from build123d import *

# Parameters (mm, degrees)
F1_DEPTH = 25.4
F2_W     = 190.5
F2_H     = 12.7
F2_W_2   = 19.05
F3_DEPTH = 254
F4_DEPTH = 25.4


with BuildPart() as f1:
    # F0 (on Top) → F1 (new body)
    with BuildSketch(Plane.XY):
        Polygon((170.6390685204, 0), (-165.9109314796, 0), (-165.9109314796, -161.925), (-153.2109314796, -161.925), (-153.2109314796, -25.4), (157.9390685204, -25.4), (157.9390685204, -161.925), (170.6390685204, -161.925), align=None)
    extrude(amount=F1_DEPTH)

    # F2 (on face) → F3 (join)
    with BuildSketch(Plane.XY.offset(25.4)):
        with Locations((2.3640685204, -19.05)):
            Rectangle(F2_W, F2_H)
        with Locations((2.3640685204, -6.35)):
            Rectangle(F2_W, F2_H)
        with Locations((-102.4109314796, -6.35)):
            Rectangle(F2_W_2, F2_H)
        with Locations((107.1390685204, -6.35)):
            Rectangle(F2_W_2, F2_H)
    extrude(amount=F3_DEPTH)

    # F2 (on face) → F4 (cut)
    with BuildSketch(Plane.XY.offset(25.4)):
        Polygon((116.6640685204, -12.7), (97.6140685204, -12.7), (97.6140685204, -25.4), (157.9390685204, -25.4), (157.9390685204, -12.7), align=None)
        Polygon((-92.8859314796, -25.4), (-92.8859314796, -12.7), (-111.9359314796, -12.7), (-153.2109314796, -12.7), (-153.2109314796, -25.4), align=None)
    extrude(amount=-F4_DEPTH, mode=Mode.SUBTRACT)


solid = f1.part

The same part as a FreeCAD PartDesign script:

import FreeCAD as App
import Part
import Sketcher

V = App.Vector
Q = App.Units.Quantity


def add_polygon(sketch, points):
    """Adds a closed chain of lines whose ends are joined by coincident constraints."""
    first, n = sketch.GeometryCount, len(points)
    for a, b in zip(points, points[1:] + points[:1]):
        sketch.addGeometry(Part.LineSegment(App.Vector(*a, 0), App.Vector(*b, 0)), False)
    for i in range(n):
        sketch.addConstraint(Sketcher.Constraint("Coincident", first + i, 2, first + (i + 1) % n, 1))

doc = App.newDocument("Part")
body = doc.addObject("PartDesign::Body", "Body")

sketch1 = doc.addObject("Sketcher::SketchObject", "Sketch")
body.addObject(sketch1)
sketch1.AttachmentSupport = (doc.XY_Plane, [""])
sketch1.MapMode = "FlatFace"
add_polygon(sketch1, [(170.639069, 0), (-165.910931, 0), (-165.910931, -161.925), (-153.210931, -161.925), (-153.210931, -25.4), (157.939069, -25.4), (157.939069, -161.925), (170.639069, -161.925)])
sketch1.addConstraint([
    Sketcher.Constraint("Horizontal", 0),
    Sketcher.Constraint("Vertical", 1),
    Sketcher.Constraint("Horizontal", 2),
    Sketcher.Constraint("Vertical", 3),
    Sketcher.Constraint("Horizontal", 4),
    Sketcher.Constraint("Vertical", 5),
    Sketcher.Constraint("Horizontal", 6),
    Sketcher.Constraint("Vertical", 7),
    Sketcher.Constraint("PointOnObject", 0, 2, -1),
    Sketcher.Constraint("Horizontal", 2, 2, 5, 2),
    Sketcher.Constraint("Equal", 2, 6),
    Sketcher.Constraint("DistanceX", 2, 1, 2, 2, Q("0.5 in")),
    Sketcher.Constraint("DistanceY", 3, 2, -1, 1, Q("1 in")),
    Sketcher.Constraint("DistanceX", 0, 2, 0, 1, Q("13.25 in")),
    Sketcher.Constraint("DistanceY", 1, 2, 1, 1, Q("6.375 in")),
    Sketcher.Constraint("DistanceX", 0, 2, -1, 1, Q("165.910931 mm")),
])
pad1 = doc.addObject("PartDesign::Pad", "Pad")
body.addObject(pad1)
pad1.Profile = sketch1
pad1.Length = Q("1 in")

sketch2 = doc.addObject("Sketcher::SketchObject", "Sketch001")
body.addObject(sketch2)
sketch2.AttachmentSupport = (doc.XY_Plane, [""])
sketch2.MapMode = "FlatFace"
sketch2.AttachmentOffset = App.Placement(V(0, 0, 1 * 25.4), App.Rotation())
add_polygon(sketch2, [(-92.885931, -25.4), (97.614069, -25.4), (97.614069, -12.7), (116.664069, -12.7), (116.664069, 0), (-111.935931, 0), (-111.935931, -12.7), (-92.885931, -12.7)])
sketch2.addConstraint([
    Sketcher.Constraint("Horizontal", 0),
    Sketcher.Constraint("Vertical", 1),
    Sketcher.Constraint("Horizontal", 2),
    Sketcher.Constraint("Vertical", 3),
    Sketcher.Constraint("Horizontal", 4),
    Sketcher.Constraint("Vertical", 5),
    Sketcher.Constraint("Horizontal", 6),
    Sketcher.Constraint("Vertical", 7),
    Sketcher.Constraint("PointOnObject", 3, 2, -1),
    Sketcher.Constraint("Horizontal", 2, 2, 5, 2),
    Sketcher.Constraint("Equal", 2, 6),
    Sketcher.Constraint("Equal", 1, 3),
    Sketcher.Constraint("DistanceX", 4, 2, 4, 1, Q("9 in")),
    Sketcher.Constraint("DistanceX", 0, 1, 0, 2, Q("7.5 in")),
    Sketcher.Constraint("DistanceY", 1, 1, 1, 2, Q("0.5 in")),
    Sketcher.Constraint("DistanceX", -1, 1, 0, 2, Q("97.614069 mm")),
])
pad2 = doc.addObject("PartDesign::Pad", "Pad001")
body.addObject(pad2)
pad2.Profile = sketch2
pad2.Length = Q("10 in")

sketch3 = doc.addObject("Sketcher::SketchObject", "Sketch002")
body.addObject(sketch3)
sketch3.AttachmentSupport = (doc.XY_Plane, [""])
sketch3.MapMode = "FlatFace"
sketch3.AttachmentOffset = App.Placement(V(0, 0, 1 * 25.4), App.Rotation())
add_polygon(sketch3, [(97.614069, -12.7), (97.614069, -25.4), (157.939069, -25.4), (157.939069, -12.7)])
add_polygon(sketch3, [(-92.885931, -25.4), (-92.885931, -12.7), (-153.210931, -12.7), (-153.210931, -25.4)])
sketch3.addConstraint([
    Sketcher.Constraint("Vertical", 0),
    Sketcher.Constraint("Horizontal", 1),
    Sketcher.Constraint("Vertical", 2),
    Sketcher.Constraint("Horizontal", 3),
    Sketcher.Constraint("Vertical", 4),
    Sketcher.Constraint("Horizontal", 5),
    Sketcher.Constraint("Vertical", 6),
    Sketcher.Constraint("Horizontal", 7),
    Sketcher.Constraint("Horizontal", 3, 2, 4, 2),
    Sketcher.Constraint("Horizontal", 1, 2, 6, 2),
    Sketcher.Constraint("Equal", 3, 5),
    Sketcher.Constraint("DistanceY", 0, 2, 0, 1, Q("0.5 in")),
    Sketcher.Constraint("DistanceY", 0, 2, -1, 1, Q("1 in")),
    Sketcher.Constraint("DistanceX", 4, 2, 3, 2, Q("7.5 in")),
    Sketcher.Constraint("DistanceX", 1, 1, 1, 2, Q("2.375 in")),
    Sketcher.Constraint("DistanceX", -1, 1, 0, 2, Q("97.614069 mm")),
])
pocket1 = doc.addObject("PartDesign::Pocket", "Pocket")
body.addObject(pocket1)
pocket1.Profile = sketch3
pocket1.Length = Q("1 in")

doc.recompute()
